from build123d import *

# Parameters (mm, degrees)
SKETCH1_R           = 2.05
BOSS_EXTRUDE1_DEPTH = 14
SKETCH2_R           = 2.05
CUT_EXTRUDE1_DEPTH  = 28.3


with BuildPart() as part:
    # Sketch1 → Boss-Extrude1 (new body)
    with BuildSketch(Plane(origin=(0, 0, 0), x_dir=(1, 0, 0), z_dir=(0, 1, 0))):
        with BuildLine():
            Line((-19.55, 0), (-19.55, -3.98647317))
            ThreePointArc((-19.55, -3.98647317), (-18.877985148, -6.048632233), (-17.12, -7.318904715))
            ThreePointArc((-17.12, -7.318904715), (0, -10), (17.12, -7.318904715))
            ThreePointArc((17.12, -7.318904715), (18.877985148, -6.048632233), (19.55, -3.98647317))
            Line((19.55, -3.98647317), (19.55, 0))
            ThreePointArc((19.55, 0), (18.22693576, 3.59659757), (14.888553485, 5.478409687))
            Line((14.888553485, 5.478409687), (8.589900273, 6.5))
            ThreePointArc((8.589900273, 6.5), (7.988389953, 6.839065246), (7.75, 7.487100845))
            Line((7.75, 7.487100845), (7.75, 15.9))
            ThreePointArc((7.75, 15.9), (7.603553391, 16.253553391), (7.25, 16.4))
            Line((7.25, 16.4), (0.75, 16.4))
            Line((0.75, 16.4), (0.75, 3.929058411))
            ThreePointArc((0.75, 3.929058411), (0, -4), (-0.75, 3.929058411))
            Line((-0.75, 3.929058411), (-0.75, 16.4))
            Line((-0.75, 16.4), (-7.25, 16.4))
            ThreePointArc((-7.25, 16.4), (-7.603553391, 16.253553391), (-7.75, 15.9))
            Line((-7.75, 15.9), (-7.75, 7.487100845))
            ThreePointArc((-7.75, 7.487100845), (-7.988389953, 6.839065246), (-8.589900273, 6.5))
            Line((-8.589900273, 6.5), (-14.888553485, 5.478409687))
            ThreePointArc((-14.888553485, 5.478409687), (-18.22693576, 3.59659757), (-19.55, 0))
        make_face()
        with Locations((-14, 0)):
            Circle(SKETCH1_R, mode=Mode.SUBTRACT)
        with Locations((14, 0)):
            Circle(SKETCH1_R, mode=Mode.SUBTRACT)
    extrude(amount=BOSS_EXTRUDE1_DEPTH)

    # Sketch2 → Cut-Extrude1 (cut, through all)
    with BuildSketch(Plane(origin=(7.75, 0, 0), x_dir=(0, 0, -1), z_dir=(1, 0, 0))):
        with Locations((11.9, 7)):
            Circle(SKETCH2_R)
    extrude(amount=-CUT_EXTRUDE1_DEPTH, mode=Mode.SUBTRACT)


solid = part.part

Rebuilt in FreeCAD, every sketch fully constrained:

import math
import FreeCAD as App
import Part
import Sketcher

doc = App.newDocument("Part")
body = doc.addObject("PartDesign::Body", "Body")

# Sketch on XZ plane
sketch1 = doc.addObject("Sketcher::SketchObject", "Sketch")
body.addObject(sketch1)
sketch1.AttachmentSupport = (doc.XZ_Plane, [""])
sketch1.MapMode = "FlatFace"
sketch1.addGeometry([
    Part.LineSegment(App.Vector(-19.55, 0, 0), App.Vector(-19.55, 3.99, 0)),  # 0
    Part.ArcOfCircle(Part.Circle(App.Vector(-16.05, 3.99, 0), App.Vector(0, 0, 1), 3.5), math.radians(108), math.radians(180)),  # 1
    Part.ArcOfCircle(Part.Circle(App.Vector(0, -46, 0), App.Vector(0, 0, 1), 56), math.radians(72), math.radians(108)),  # 2
    Part.ArcOfCircle(Part.Circle(App.Vector(16.05, 3.99, 0), App.Vector(0, 0, 1), 3.5), math.radians(0), math.radians(72)),  # 3
    Part.LineSegment(App.Vector(19.55, 3.99, 0), App.Vector(19.55, 0, 0)),  # 4
    Part.ArcOfCircle(Part.Circle(App.Vector(14, 0, 0), App.Vector(0, 0, 1), 5.55), math.radians(-81), math.radians(0)),  # 5
    Part.LineSegment(App.Vector(14.89, -5.48, 0), App.Vector(8.59, -6.5, 0)),  # 6
    Part.ArcOfCircle(Part.Circle(App.Vector(8.75, -7.49, 0), App.Vector(0, 0, 1), 1), math.radians(99), math.radians(180)),  # 7
    Part.LineSegment(App.Vector(7.75, -7.49, 0), App.Vector(7.75, -15.9, 0)),  # 8
    Part.ArcOfCircle(Part.Circle(App.Vector(7.25, -15.9, 0), App.Vector(0, 0, 1), 0.5), math.radians(-90), math.radians(0)),  # 9
    Part.LineSegment(App.Vector(7.25, -16.4, 0), App.Vector(0.75, -16.4, 0)),  # 10
    Part.LineSegment(App.Vector(0.75, -16.4, 0), App.Vector(0.75, -3.93, 0)),  # 11
    Part.ArcOfCircle(Part.Circle(App.Vector(0, 0, 0), App.Vector(0, 0, 1), 4), math.radians(-79), math.radians(259)),  # 12
    Part.LineSegment(App.Vector(-0.75, -3.93, 0), App.Vector(-0.75, -16.4, 0)),  # 13
    Part.LineSegment(App.Vector(-0.75, -16.4, 0), App.Vector(-7.25, -16.4, 0)),  # 14
    Part.ArcOfCircle(Part.Circle(App.Vector(-7.25, -15.9, 0), App.Vector(0, 0, 1), 0.5), math.radians(180), math.radians(270)),  # 15
    Part.LineSegment(App.Vector(-7.75, -15.9, 0), App.Vector(-7.75, -7.49, 0)),  # 16
    Part.ArcOfCircle(Part.Circle(App.Vector(-8.75, -7.49, 0), App.Vector(0, 0, 1), 1), math.radians(0), math.radians(81)),  # 17
    Part.LineSegment(App.Vector(-8.59, -6.5, 0), App.Vector(-14.89, -5.48, 0)),  # 18
    Part.ArcOfCircle(Part.Circle(App.Vector(-14, 0, 0), App.Vector(0, 0, 1), 5.55), math.radians(180), math.radians(261)),  # 19
    Part.Circle(App.Vector(-14, 0, 0), App.Vector(0, 0, 1), 2.05),  # 20
    Part.Circle(App.Vector(14, 0, 0), App.Vector(0, 0, 1), 2.05),  # 21
], False)
sketch1.addConstraint([
    Sketcher.Constraint("Tangent", 0, 2, 1, 2),
    Sketcher.Constraint("Tangent", 1, 1, 2, 2),
    Sketcher.Constraint("Tangent", 2, 1, 3, 2),
    Sketcher.Constraint("Tangent", 3, 1, 4, 1),
    Sketcher.Constraint("Tangent", 4, 2, 5, 2),
    Sketcher.Constraint("Tangent", 5, 1, 6, 1),
    Sketcher.Constraint("Tangent", 6, 2, 7, 1),
    Sketcher.Constraint("Tangent", 7, 2, 8, 1),
    Sketcher.Constraint("Tangent", 8, 2, 9, 2),
    Sketcher.Constraint("Tangent", 9, 1, 10, 1),
    Sketcher.Constraint("Coincident", 10, 2, 11, 1),
    Sketcher.Constraint("Coincident", 11, 2, 12, 1),
    Sketcher.Constraint("Coincident", 12, 2, 13, 1),
    Sketcher.Constraint("Coincident", 13, 2, 14, 1),
    Sketcher.Constraint("Tangent", 14, 2, 15, 2),
    Sketcher.Constraint("Tangent", 15, 1, 16, 1),
    Sketcher.Constraint("Tangent", 16, 2, 17, 1),
    Sketcher.Constraint("Tangent", 17, 2, 18, 1),
    Sketcher.Constraint("Tangent", 18, 2, 19, 2),
    Sketcher.Constraint("Tangent", 19, 1, 0, 1),
    Sketcher.Constraint("Vertical", 0),
    Sketcher.Constraint("Vertical", 4),
    Sketcher.Constraint("Vertical", 8),
    Sketcher.Constraint("Horizontal", 10),
    Sketcher.Constraint("Vertical", 11),
    Sketcher.Constraint("Vertical", 13),
    Sketcher.Constraint("Horizontal", 14),
    Sketcher.Constraint("Vertical", 16),
    Sketcher.Constraint("Coincident", 12, 3, -1, 1),
    Sketcher.Constraint("Coincident", 20, 3, 19, 3),
    Sketcher.Constraint("Coincident", 21, 3, 5, 3),
    Sketcher.Constraint("Equal", 1, 3),
    Sketcher.Constraint("Equal", 9, 15),
    Sketcher.Constraint("Equal", 7, 17),
    Sketcher.Constraint("Equal", 5, 19),
    Sketcher.Constraint("Equal", 20, 21),
    Sketcher.Constraint("Symmetric", 5, 3, 19, 3, -1, 1),
    Sketcher.Constraint("Symmetric", 9, 3, 15, 3, -2),
    Sketcher.Constraint("Symmetric", 6, 2, 17, 2, -2),
    Sketcher.Constraint("PointOnObject", 2, 3, -2),
    Sketcher.Constraint("Horizontal", 11, 2, 12, 2),
    Sketcher.Constraint("Radius", 2, 56.0),
    Sketcher.Constraint("Radius", 7, 1.0),
    Sketcher.Constraint("Radius", 12, 4.0),
    Sketcher.Constraint("Diameter", 20, 4.1),
    Sketcher.Constraint("Radius", 1, 3.5),
    Sketcher.Constraint("Radius", 9, 0.5),
    Sketcher.Constraint("Radius", 5, 5.55),
    Sketcher.Constraint("DistanceX", 10, 2, 10, 1, 6.5),
    Sketcher.Constraint("DistanceY", 2, 3, -1, 1, 46.0),
    Sketcher.Constraint("DistanceX", -1, 1, 5, 3, 14.0),
    Sketcher.Constraint("DistanceX", 15, 3, 7, 3, 16.0),
    Sketcher.Constraint("DistanceY", 9, 3, -1, 1, 15.9),
    Sketcher.Constraint("DistanceY", 6, 2, -1, 1, 6.5),
])
pad1 = doc.addObject("PartDesign::Pad", "Pad")
body.addObject(pad1)
pad1.Profile = sketch1
pad1.Length = 14
pad1.Reversed = True

# Sketch on YZ plane
sketch2 = doc.addObject("Sketcher::SketchObject", "Sketch001")
body.addObject(sketch2)
sketch2.AttachmentSupport = (doc.YZ_Plane, [""])
sketch2.MapMode = "FlatFace"
sketch2.AttachmentOffset = App.Placement(App.Vector(0, 0, 7.75), App.Rotation())
sketch2.addGeometry(Part.Circle(App.Vector(7, -11.9, 0), App.Vector(0, 0, 1), 2), False)
sketch2.addConstraint([
    Sketcher.Constraint("Diameter", 0, 4.1),
    Sketcher.Constraint("DistanceX", -1, 1, 0, 3, 7.0),
    Sketcher.Constraint("DistanceY", 0, 3, -1, 1, 11.9),
])
pocket1 = doc.addObject("PartDesign::Pocket", "Pocket")
body.addObject(pocket1)
pocket1.Profile = sketch2
pocket1.Type = "ThroughAll"

doc.recompute()
